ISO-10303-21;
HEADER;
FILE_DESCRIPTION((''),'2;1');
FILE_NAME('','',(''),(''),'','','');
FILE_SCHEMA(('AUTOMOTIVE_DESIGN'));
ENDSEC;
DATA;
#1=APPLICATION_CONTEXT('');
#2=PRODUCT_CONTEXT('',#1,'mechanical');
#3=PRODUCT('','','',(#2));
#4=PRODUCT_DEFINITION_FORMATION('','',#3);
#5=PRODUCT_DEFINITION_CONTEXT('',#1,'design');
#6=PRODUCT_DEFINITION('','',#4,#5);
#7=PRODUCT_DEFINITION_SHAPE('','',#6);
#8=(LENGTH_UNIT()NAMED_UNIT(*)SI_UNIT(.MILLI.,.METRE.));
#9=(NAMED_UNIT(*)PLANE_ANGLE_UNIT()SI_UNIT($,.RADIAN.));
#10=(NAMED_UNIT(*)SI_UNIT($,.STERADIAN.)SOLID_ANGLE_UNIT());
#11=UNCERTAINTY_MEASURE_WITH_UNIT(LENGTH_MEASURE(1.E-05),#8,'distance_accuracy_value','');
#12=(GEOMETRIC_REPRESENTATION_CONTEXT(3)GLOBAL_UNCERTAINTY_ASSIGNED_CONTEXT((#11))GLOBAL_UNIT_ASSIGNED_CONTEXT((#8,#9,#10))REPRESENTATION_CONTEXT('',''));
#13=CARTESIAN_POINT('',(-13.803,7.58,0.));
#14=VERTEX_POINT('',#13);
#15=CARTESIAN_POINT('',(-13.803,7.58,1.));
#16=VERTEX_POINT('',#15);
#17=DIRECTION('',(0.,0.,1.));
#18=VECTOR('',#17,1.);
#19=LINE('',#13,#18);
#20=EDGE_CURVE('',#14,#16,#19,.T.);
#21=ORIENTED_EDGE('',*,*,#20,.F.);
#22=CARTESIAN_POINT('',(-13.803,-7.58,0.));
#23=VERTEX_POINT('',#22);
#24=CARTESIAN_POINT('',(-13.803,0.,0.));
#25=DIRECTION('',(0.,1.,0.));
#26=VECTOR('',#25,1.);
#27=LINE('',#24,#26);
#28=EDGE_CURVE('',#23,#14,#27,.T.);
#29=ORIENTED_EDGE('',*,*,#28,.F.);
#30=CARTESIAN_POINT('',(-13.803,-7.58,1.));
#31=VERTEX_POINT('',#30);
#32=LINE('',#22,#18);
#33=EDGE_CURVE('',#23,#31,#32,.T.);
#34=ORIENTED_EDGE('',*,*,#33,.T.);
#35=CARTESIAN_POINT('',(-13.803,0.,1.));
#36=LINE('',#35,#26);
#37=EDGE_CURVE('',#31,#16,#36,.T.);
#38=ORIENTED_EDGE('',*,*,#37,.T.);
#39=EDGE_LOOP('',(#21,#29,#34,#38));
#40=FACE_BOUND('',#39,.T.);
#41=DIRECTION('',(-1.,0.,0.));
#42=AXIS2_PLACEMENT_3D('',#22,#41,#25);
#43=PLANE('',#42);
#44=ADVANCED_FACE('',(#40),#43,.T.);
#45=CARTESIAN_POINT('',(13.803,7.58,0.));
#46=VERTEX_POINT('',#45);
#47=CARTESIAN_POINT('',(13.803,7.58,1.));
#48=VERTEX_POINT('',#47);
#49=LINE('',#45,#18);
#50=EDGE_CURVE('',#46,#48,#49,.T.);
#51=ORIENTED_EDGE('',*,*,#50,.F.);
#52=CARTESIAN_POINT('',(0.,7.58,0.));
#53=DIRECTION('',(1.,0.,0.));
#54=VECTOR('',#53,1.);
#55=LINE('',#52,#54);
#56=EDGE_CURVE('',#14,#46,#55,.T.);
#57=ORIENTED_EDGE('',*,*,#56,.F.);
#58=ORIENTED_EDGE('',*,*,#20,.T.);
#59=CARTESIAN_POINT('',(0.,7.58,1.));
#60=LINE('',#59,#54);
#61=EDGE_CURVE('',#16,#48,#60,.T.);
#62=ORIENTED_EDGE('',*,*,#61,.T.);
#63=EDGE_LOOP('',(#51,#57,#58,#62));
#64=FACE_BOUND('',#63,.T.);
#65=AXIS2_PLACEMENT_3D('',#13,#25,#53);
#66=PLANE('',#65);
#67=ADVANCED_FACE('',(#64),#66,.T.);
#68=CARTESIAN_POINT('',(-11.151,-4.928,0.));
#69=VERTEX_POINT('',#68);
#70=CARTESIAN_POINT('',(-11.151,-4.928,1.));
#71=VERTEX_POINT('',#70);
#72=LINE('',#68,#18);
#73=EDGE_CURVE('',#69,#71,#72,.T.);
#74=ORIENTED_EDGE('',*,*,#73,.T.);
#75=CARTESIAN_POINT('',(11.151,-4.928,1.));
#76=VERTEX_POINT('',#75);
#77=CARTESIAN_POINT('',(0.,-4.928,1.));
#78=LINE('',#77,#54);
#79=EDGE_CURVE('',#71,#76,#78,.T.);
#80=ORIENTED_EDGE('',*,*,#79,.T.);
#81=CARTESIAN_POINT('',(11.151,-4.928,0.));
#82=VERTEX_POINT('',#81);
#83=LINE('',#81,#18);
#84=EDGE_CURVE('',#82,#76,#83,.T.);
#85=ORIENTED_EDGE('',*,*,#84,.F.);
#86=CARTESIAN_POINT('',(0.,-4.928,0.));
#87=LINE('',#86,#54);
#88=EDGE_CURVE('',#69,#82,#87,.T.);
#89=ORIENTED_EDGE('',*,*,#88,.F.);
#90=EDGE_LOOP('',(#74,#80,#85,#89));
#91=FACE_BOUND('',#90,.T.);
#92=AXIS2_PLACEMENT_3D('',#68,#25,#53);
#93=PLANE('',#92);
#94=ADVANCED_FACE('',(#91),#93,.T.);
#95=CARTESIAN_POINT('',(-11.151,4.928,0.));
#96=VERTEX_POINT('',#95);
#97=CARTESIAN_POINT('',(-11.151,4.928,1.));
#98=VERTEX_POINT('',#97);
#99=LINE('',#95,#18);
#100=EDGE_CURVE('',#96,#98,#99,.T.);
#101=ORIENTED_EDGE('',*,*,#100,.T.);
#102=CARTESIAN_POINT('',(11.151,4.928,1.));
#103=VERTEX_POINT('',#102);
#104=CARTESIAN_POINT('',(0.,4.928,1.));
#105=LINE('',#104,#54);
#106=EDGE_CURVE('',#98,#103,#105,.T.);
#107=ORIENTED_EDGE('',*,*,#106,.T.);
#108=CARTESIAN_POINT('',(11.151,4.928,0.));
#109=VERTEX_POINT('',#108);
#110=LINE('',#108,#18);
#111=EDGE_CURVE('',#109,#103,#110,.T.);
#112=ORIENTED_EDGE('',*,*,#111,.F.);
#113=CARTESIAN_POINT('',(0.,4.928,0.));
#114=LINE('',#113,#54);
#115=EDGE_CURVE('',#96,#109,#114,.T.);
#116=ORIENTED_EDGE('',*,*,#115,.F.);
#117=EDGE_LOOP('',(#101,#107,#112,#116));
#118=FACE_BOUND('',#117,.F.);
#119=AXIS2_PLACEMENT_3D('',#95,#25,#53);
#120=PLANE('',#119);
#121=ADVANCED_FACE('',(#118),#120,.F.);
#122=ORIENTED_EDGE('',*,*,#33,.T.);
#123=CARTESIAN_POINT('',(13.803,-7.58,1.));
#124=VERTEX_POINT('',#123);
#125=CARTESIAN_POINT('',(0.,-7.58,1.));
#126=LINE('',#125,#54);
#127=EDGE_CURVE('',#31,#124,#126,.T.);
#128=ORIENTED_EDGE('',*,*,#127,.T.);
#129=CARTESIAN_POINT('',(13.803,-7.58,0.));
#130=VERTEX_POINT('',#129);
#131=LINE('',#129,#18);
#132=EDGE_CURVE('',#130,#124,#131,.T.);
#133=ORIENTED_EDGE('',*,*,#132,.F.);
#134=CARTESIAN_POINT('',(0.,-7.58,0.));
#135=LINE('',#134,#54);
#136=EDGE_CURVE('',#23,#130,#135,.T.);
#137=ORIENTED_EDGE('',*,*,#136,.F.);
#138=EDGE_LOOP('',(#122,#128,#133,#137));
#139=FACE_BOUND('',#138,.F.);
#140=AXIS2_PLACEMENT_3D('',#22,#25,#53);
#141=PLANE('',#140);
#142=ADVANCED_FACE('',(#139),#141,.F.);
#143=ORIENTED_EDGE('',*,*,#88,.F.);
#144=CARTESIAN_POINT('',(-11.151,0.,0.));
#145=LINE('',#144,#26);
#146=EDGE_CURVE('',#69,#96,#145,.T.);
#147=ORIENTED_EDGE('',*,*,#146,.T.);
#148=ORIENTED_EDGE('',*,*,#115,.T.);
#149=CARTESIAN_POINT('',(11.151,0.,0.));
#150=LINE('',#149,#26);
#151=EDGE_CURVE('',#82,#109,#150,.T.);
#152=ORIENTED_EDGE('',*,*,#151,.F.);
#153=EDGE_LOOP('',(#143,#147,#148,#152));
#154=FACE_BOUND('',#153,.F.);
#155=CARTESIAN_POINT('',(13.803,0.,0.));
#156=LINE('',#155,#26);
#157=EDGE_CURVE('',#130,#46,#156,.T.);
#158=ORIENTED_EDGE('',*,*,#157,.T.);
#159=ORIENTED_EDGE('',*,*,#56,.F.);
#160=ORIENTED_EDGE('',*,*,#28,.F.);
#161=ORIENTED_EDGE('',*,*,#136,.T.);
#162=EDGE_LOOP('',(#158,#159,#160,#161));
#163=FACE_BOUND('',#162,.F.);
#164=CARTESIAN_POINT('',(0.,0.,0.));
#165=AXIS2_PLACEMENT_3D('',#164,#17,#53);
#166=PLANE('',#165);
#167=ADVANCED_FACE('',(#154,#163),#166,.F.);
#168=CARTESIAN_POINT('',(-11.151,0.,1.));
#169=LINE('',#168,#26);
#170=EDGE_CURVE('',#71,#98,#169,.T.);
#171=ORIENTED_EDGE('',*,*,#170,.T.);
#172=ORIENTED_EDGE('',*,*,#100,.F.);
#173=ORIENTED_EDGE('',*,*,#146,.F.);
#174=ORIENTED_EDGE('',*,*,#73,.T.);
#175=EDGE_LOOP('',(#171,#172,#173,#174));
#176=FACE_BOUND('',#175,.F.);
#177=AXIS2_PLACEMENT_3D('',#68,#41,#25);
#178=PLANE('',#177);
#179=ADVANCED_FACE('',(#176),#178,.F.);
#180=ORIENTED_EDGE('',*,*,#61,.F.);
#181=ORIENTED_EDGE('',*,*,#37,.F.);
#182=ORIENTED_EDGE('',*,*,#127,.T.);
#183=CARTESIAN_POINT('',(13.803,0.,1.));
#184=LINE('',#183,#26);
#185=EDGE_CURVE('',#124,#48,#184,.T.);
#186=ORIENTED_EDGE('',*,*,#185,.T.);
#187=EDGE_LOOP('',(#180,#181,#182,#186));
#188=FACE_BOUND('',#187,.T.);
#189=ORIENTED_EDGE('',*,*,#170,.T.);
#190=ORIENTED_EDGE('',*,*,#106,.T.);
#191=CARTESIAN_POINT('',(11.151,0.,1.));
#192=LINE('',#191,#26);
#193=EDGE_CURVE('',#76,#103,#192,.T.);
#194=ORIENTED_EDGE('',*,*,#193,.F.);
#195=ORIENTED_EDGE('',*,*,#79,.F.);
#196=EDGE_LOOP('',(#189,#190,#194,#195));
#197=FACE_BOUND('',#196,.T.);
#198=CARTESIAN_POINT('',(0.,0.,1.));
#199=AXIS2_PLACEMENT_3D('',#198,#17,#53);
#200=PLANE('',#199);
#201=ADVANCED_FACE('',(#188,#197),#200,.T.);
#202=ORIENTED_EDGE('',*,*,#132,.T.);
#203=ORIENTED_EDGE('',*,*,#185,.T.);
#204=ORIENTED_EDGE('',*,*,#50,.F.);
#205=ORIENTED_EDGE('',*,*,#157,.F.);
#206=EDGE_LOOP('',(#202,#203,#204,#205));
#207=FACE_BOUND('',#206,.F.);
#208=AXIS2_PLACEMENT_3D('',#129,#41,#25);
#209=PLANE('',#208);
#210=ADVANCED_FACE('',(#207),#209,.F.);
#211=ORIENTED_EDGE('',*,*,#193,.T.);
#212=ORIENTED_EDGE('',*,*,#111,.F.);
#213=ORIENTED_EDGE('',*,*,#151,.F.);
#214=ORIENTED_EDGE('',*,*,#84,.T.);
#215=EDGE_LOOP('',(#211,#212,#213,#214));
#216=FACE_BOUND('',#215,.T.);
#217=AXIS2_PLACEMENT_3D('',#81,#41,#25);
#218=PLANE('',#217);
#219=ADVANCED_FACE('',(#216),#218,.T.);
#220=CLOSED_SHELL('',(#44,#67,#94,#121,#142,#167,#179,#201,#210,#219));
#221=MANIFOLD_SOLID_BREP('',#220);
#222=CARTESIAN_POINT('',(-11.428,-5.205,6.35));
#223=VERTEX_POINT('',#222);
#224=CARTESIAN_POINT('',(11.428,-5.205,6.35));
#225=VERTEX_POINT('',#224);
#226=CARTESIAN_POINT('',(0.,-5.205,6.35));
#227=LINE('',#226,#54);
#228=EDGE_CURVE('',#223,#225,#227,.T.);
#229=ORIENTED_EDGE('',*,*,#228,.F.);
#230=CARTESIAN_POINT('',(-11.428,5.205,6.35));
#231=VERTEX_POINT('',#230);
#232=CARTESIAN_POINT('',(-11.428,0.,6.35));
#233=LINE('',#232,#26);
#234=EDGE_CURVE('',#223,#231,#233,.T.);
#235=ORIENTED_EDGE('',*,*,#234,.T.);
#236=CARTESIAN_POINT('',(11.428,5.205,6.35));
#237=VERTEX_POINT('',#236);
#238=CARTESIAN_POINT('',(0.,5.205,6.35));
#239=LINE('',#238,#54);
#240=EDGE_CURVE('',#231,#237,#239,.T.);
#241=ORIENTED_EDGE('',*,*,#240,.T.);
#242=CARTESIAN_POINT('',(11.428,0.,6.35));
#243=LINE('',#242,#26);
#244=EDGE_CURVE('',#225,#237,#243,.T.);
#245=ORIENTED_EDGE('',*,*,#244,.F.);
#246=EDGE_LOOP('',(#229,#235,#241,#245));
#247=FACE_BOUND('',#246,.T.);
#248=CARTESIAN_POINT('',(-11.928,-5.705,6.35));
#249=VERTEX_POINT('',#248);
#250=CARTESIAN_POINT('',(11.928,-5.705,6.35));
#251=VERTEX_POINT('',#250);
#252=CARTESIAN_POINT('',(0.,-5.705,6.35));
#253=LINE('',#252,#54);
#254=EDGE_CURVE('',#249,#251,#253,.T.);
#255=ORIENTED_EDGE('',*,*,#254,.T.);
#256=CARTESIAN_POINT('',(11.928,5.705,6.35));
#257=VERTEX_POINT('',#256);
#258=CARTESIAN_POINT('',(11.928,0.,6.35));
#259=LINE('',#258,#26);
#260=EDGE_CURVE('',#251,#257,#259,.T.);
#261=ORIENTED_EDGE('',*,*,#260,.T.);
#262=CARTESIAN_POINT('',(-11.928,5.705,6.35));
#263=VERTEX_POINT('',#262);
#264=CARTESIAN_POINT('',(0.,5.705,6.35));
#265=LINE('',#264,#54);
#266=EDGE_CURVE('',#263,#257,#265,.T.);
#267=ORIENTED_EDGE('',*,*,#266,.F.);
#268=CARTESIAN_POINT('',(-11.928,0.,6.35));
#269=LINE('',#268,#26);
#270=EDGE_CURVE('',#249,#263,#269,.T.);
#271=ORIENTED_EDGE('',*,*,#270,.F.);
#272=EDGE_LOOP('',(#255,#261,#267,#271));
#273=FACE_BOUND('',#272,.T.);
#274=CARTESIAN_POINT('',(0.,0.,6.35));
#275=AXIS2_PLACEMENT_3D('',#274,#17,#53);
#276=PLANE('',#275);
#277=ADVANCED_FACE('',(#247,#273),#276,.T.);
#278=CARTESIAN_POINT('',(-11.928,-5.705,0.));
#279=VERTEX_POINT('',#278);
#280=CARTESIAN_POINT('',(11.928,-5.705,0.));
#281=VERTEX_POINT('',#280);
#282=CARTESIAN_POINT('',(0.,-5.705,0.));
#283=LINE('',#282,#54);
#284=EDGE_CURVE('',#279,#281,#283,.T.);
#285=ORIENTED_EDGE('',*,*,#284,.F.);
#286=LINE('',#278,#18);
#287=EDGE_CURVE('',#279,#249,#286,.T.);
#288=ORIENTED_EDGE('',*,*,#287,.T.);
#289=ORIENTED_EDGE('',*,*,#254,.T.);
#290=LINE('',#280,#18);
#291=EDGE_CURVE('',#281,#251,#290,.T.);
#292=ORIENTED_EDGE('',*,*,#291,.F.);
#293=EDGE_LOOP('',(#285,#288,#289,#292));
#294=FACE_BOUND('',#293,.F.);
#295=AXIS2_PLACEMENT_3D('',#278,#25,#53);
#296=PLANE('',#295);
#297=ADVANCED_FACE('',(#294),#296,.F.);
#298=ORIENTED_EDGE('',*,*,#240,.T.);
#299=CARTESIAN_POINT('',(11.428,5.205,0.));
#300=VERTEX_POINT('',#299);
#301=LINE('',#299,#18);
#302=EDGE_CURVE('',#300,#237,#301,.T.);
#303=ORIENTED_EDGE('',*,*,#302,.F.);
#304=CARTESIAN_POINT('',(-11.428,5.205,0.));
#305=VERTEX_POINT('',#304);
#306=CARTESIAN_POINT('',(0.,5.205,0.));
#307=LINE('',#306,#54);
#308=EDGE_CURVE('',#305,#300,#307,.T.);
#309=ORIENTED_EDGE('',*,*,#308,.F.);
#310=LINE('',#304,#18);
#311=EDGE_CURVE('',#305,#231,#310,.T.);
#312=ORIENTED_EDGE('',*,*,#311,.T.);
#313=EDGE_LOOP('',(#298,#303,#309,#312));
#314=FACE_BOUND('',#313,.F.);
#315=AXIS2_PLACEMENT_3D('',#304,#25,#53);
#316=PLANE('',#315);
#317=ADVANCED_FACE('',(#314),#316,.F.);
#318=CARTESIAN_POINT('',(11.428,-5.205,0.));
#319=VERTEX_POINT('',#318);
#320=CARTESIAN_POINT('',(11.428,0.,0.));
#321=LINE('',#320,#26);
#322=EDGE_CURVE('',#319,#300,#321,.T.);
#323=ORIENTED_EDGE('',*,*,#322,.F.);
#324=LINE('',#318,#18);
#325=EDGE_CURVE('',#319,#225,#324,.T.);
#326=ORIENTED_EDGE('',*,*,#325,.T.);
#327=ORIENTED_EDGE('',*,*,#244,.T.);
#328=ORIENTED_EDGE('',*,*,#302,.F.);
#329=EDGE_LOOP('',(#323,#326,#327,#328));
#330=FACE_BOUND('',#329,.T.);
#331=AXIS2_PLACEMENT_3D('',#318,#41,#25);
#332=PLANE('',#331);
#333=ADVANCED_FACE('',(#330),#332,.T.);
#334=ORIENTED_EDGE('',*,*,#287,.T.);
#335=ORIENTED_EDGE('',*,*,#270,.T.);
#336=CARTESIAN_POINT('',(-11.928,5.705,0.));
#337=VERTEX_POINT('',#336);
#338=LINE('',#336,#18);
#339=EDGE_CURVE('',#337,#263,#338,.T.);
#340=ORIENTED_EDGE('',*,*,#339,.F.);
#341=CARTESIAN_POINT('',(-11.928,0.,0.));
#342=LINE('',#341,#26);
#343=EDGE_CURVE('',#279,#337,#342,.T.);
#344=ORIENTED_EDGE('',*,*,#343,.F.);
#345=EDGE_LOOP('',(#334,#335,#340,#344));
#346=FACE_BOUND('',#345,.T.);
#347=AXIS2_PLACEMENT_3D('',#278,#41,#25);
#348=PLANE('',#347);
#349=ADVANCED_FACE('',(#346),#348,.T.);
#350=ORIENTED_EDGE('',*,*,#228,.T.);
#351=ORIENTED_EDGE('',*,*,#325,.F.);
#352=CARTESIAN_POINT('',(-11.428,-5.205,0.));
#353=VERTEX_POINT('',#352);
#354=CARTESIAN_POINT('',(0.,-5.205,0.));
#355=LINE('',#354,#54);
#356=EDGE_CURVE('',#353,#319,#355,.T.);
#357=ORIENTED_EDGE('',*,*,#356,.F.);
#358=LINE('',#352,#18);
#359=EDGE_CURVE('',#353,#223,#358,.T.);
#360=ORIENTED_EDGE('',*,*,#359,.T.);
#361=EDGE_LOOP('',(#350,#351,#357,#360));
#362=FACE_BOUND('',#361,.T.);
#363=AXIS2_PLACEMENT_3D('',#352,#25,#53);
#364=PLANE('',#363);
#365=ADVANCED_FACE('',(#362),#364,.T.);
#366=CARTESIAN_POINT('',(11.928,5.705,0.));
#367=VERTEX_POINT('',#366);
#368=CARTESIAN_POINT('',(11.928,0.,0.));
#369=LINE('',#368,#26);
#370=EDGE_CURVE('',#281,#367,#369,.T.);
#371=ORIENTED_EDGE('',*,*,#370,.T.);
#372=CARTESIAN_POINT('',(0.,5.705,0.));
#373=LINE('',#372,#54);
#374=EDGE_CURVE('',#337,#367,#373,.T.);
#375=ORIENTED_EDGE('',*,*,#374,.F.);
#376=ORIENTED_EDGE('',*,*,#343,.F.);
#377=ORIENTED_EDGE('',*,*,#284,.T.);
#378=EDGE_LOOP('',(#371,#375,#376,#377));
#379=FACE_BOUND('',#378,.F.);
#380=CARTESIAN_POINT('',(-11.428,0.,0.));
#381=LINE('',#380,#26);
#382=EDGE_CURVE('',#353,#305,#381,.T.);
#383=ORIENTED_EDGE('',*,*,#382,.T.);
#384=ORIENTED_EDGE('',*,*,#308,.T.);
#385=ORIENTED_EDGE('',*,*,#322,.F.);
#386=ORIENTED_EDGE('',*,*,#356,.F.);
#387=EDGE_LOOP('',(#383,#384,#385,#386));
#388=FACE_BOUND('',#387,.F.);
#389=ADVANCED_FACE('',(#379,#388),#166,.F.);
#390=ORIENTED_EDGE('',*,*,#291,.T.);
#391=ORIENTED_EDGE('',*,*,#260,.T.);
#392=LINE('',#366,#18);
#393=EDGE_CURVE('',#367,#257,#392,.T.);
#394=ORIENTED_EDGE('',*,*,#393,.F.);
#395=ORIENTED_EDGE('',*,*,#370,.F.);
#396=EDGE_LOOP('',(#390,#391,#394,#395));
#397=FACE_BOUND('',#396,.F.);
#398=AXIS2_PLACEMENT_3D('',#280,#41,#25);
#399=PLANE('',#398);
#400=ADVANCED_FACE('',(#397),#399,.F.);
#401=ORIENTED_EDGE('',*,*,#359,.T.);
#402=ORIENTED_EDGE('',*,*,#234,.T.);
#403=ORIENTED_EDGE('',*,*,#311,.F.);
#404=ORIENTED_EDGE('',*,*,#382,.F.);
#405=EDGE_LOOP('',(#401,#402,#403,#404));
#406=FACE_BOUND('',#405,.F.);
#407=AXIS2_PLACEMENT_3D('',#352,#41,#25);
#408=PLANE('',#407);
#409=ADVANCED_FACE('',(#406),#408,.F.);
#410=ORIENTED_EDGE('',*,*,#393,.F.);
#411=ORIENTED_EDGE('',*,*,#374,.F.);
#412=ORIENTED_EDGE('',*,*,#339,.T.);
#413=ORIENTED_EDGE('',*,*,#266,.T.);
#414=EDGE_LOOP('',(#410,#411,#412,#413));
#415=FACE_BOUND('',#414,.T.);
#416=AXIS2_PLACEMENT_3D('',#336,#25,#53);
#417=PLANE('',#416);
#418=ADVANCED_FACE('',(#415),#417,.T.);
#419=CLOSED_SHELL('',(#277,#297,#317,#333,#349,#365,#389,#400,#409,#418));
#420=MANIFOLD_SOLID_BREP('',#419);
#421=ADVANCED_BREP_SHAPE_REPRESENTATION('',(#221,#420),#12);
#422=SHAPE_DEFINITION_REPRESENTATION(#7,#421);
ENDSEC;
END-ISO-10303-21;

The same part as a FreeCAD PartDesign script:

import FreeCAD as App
import Part
import Sketcher

V = App.Vector
Q = App.Units.Quantity


def add_polygon(sketch, points):
    """Adds a closed chain of lines whose ends are joined by coincident constraints."""
    first, n = sketch.GeometryCount, len(points)
    for a, b in zip(points, points[1:] + points[:1]):
        sketch.addGeometry(Part.LineSegment(App.Vector(*a, 0), App.Vector(*b, 0)), False)
    for i in range(n):
        sketch.addConstraint(Sketcher.Constraint("Coincident", first + i, 2, first + (i + 1) % n, 1))

doc = App.newDocument("Part")
params = doc.addObject("Spreadsheet::Sheet", "Params")
for row, (alias, value) in enumerate([
    ("sketch1_height", "15.16 mm"),
    ("pad1_length", "1 mm"),
    ("sketch2_height", "11.41 mm"),
    ("sketch2_height2", "10.41 mm"),
    ("pad2_length", "6.35 mm"),
], start=1):
    params.set(f"A{row}", alias)
    params.set(f"B{row}", "=" + value)
    params.setAlias(f"B{row}", alias)

body = doc.addObject("PartDesign::Body", "Body")

# Sketch on XY plane
sketch1 = doc.addObject("Sketcher::SketchObject", "Sketch")
body.addObject(sketch1)
sketch1.AttachmentSupport = (doc.XY_Plane, [""])
sketch1.MapMode = "FlatFace"
add_polygon(sketch1, [(-14, 8), (-14, -8), (14, -8), (14, 8)])  # lines 0-3
add_polygon(sketch1, [(11, -5), (-11, -5), (-11, 5), (11, 5)])  # lines 4-7
sketch1.addConstraint(Sketcher.Constraint("Vertical", 0))
sketch1.addConstraint(Sketcher.Constraint("Horizontal", 1))
sketch1.addConstraint(Sketcher.Constraint("Vertical", 2))
sketch1.addConstraint(Sketcher.Constraint("Horizontal", 3))
sketch1.addConstraint(Sketcher.Constraint("Horizontal", 4))
sketch1.addConstraint(Sketcher.Constraint("Vertical", 5))
sketch1.addConstraint(Sketcher.Constraint("Horizontal", 6))
sketch1.addConstraint(Sketcher.Constraint("Vertical", 7))
sketch1.addConstraint(Sketcher.Constraint("Symmetric", 0, 2, 2, 2, -1, 1))
sketch1.addConstraint(Sketcher.Constraint("Symmetric", 4, 2, 6, 2, -1, 1))
sketch1.addConstraint(Sketcher.Constraint("DistanceY", 0, 2, 0, 1, Q("15.16 mm")))
sketch1.addConstraint(Sketcher.Constraint("DistanceX", 1, 1, 1, 2, Q("27.606 mm")))
sketch1.addConstraint(Sketcher.Constraint("DistanceX", 4, 2, 4, 1, Q("22.302 mm")))
sketch1.addConstraint(Sketcher.Constraint("DistanceY", 5, 1, 5, 2, Q("9.856 mm")))
sketch1.setExpression("Constraints[18]", "Params.sketch1_height")
pad1 = doc.addObject("PartDesign::Pad", "Pad")
body.addObject(pad1)
pad1.Profile = sketch1
pad1.setExpression("Length", "Params.pad1_length")
body2 = doc.addObject("PartDesign::Body", "Body001")

# Sketch on XY plane
sketch2 = doc.addObject("Sketcher::SketchObject", "Sketch001")
body2.addObject(sketch2)
sketch2.AttachmentSupport = (doc.getObject("XY_Plane001"), [""])
sketch2.MapMode = "FlatFace"
add_polygon(sketch2, [(-12, 6), (-12, -6), (12, -6), (12, 6)])  # lines 0-3
add_polygon(sketch2, [(11, -5), (-11, -5), (-11, 5), (11, 5)])  # lines 4-7
sketch2.addConstraint(Sketcher.Constraint("Vertical", 0))
sketch2.addConstraint(Sketcher.Constraint("Horizontal", 1))
sketch2.addConstraint(Sketcher.Constraint("Vertical", 2))
sketch2.addConstraint(Sketcher.Constraint("Horizontal", 3))
sketch2.addConstraint(Sketcher.Constraint("Horizontal", 4))
sketch2.addConstraint(Sketcher.Constraint("Vertical", 5))
sketch2.addConstraint(Sketcher.Constraint("Horizontal", 6))
sketch2.addConstraint(Sketcher.Constraint("Vertical", 7))
sketch2.addConstraint(Sketcher.Constraint("Symmetric", 0, 2, 2, 2, -1, 1))
sketch2.addConstraint(Sketcher.Constraint("Symmetric", 4, 2, 6, 2, -1, 1))
sketch2.addConstraint(Sketcher.Constraint("DistanceY", 0, 2, 0, 1, Q("11.41 mm")))
sketch2.addConstraint(Sketcher.Constraint("DistanceY", 5, 1, 5, 2, Q("10.41 mm")))
sketch2.addConstraint(Sketcher.Constraint("DistanceX", 0, 2, 4, 2, Q("0.5 mm")))
sketch2.addConstraint(Sketcher.Constraint("DistanceX", 1, 1, 1, 2, Q("23.856 mm")))
sketch2.setExpression("Constraints[18]", "Params.sketch2_height")
sketch2.setExpression("Constraints[19]", "Params.sketch2_height2")
pad2 = doc.addObject("PartDesign::Pad", "Pad001")
body2.addObject(pad2)
pad2.Profile = sketch2
pad2.setExpression("Length", "Params.pad2_length")

doc.recompute()
